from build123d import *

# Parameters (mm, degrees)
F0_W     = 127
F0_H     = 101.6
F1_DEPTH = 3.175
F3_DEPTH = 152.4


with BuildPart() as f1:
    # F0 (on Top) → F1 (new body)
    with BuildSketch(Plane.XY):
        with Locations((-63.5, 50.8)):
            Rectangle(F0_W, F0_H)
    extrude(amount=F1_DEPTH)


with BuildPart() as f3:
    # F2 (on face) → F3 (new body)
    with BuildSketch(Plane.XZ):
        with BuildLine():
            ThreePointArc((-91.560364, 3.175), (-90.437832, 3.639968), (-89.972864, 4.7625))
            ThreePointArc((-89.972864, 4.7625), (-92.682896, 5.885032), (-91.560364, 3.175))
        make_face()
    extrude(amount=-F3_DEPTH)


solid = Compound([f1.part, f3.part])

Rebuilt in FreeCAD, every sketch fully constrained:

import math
import FreeCAD as App
import Part
import Sketcher
from FreeCAD import Vector
Q = App.Units.Quantity


def add_polygon(sketch, points):
    """Adds a closed chain of lines whose ends are joined by coincident constraints."""
    first, n = sketch.GeometryCount, len(points)
    for a, b in zip(points, points[1:] + points[:1]):
        sketch.addGeometry(Part.LineSegment(App.Vector(*a, 0), App.Vector(*b, 0)), False)
    for i in range(n):
        sketch.addConstraint(Sketcher.Constraint("Coincident", first + i, 2, first + (i + 1) % n, 1))

doc = App.newDocument("Part")
params = doc.addObject("Spreadsheet::Sheet", "Params")
for row, (alias, value) in enumerate([
    ("sketch1_width", "5 in"),
    ("sketch1_height", "4 in"),
    ("pad1_length", "0.125 in"),
    ("sketch2_radius", "0.0625 in"),
    ("pad2_length", "6 in"),
], start=1):
    params.set(f"A{row}", alias)
    params.set(f"B{row}", "=" + value)
    params.setAlias(f"B{row}", alias)

body = doc.addObject("PartDesign::Body", "Body")

# Sketch on XY plane
sketch1 = body.newObject("Sketcher::SketchObject", "Sketch")
sketch1.AttachmentSupport = (doc.getObject("XY_Plane"), [""])
sketch1.MapMode = "FlatFace"
add_polygon(sketch1, [(-127, 102), (-127, 0), (0, 0), (0, 102)])  # lines 0-3
sketch1.addConstraint(Sketcher.Constraint("Vertical", 0))
sketch1.addConstraint(Sketcher.Constraint("Horizontal", 1))
sketch1.addConstraint(Sketcher.Constraint("Vertical", 2))
sketch1.addConstraint(Sketcher.Constraint("Horizontal", 3))
sketch1.addConstraint(Sketcher.Constraint("Coincident", 1, 2, -1, 1))
sketch1.addConstraint(Sketcher.Constraint("DistanceX", 1, 1, 1, 2, Q("5 in")))
sketch1.addConstraint(Sketcher.Constraint("DistanceY", 0, 2, 0, 1, Q("4 in")))
sketch1.setExpression("Constraints[9]", "Params.sketch1_width")
sketch1.setExpression("Constraints[10]", "Params.sketch1_height")
pad1 = body.newObject("PartDesign::Pad", "Pad")
pad1.Profile = sketch1
pad1.setExpression("Length", "Params.pad1_length")
body2 = doc.addObject("PartDesign::Body", "Body001")

# Sketch on XZ plane
sketch2 = body2.newObject("Sketcher::SketchObject", "Sketch001")
sketch2.AttachmentSupport = (doc.getObject("XZ_Plane001"), [""])
sketch2.MapMode = "FlatFace"
sketch2.addGeometry(Part.ArcOfCircle(Part.Circle(Vector(-91.6, 4.8, 0), Vector(0, 0, 1), 1.6), math.radians(-90), math.radians(0)), False)
sketch2.addGeometry(Part.ArcOfCircle(Part.Circle(Vector(-91.6, 4.8, 0), Vector(0, 0, 1), 1.6), math.radians(0), math.radians(270)), False)
sketch2.addConstraint(Sketcher.Constraint("Tangent", 0, 1, 1, 2))
sketch2.addConstraint(Sketcher.Constraint("Coincident", 1, 1, 0, 2))
sketch2.addConstraint(Sketcher.Constraint("Horizontal", 0, 3, 1, 1))
sketch2.addConstraint(Sketcher.Constraint("Vertical", 1, 3, 0, 1))
sketch2.addConstraint(Sketcher.Constraint("Radius", 0, Q("0.0625 in")))
sketch2.addConstraint(Sketcher.Constraint("DistanceY", -1, 1, 0, 3, Q("0.1875 in")))
sketch2.addConstraint(Sketcher.Constraint("DistanceX", 0, 3, -1, 1, Q("91.560364 mm")))
sketch2.setExpression("Constraints[4]", "Params.sketch2_radius")
pad2 = body2.newObject("PartDesign::Pad", "Pad001")
pad2.Profile = sketch2
pad2.setExpression("Length", "Params.pad2_length")
pad2.Reversed = True

doc.recompute()
